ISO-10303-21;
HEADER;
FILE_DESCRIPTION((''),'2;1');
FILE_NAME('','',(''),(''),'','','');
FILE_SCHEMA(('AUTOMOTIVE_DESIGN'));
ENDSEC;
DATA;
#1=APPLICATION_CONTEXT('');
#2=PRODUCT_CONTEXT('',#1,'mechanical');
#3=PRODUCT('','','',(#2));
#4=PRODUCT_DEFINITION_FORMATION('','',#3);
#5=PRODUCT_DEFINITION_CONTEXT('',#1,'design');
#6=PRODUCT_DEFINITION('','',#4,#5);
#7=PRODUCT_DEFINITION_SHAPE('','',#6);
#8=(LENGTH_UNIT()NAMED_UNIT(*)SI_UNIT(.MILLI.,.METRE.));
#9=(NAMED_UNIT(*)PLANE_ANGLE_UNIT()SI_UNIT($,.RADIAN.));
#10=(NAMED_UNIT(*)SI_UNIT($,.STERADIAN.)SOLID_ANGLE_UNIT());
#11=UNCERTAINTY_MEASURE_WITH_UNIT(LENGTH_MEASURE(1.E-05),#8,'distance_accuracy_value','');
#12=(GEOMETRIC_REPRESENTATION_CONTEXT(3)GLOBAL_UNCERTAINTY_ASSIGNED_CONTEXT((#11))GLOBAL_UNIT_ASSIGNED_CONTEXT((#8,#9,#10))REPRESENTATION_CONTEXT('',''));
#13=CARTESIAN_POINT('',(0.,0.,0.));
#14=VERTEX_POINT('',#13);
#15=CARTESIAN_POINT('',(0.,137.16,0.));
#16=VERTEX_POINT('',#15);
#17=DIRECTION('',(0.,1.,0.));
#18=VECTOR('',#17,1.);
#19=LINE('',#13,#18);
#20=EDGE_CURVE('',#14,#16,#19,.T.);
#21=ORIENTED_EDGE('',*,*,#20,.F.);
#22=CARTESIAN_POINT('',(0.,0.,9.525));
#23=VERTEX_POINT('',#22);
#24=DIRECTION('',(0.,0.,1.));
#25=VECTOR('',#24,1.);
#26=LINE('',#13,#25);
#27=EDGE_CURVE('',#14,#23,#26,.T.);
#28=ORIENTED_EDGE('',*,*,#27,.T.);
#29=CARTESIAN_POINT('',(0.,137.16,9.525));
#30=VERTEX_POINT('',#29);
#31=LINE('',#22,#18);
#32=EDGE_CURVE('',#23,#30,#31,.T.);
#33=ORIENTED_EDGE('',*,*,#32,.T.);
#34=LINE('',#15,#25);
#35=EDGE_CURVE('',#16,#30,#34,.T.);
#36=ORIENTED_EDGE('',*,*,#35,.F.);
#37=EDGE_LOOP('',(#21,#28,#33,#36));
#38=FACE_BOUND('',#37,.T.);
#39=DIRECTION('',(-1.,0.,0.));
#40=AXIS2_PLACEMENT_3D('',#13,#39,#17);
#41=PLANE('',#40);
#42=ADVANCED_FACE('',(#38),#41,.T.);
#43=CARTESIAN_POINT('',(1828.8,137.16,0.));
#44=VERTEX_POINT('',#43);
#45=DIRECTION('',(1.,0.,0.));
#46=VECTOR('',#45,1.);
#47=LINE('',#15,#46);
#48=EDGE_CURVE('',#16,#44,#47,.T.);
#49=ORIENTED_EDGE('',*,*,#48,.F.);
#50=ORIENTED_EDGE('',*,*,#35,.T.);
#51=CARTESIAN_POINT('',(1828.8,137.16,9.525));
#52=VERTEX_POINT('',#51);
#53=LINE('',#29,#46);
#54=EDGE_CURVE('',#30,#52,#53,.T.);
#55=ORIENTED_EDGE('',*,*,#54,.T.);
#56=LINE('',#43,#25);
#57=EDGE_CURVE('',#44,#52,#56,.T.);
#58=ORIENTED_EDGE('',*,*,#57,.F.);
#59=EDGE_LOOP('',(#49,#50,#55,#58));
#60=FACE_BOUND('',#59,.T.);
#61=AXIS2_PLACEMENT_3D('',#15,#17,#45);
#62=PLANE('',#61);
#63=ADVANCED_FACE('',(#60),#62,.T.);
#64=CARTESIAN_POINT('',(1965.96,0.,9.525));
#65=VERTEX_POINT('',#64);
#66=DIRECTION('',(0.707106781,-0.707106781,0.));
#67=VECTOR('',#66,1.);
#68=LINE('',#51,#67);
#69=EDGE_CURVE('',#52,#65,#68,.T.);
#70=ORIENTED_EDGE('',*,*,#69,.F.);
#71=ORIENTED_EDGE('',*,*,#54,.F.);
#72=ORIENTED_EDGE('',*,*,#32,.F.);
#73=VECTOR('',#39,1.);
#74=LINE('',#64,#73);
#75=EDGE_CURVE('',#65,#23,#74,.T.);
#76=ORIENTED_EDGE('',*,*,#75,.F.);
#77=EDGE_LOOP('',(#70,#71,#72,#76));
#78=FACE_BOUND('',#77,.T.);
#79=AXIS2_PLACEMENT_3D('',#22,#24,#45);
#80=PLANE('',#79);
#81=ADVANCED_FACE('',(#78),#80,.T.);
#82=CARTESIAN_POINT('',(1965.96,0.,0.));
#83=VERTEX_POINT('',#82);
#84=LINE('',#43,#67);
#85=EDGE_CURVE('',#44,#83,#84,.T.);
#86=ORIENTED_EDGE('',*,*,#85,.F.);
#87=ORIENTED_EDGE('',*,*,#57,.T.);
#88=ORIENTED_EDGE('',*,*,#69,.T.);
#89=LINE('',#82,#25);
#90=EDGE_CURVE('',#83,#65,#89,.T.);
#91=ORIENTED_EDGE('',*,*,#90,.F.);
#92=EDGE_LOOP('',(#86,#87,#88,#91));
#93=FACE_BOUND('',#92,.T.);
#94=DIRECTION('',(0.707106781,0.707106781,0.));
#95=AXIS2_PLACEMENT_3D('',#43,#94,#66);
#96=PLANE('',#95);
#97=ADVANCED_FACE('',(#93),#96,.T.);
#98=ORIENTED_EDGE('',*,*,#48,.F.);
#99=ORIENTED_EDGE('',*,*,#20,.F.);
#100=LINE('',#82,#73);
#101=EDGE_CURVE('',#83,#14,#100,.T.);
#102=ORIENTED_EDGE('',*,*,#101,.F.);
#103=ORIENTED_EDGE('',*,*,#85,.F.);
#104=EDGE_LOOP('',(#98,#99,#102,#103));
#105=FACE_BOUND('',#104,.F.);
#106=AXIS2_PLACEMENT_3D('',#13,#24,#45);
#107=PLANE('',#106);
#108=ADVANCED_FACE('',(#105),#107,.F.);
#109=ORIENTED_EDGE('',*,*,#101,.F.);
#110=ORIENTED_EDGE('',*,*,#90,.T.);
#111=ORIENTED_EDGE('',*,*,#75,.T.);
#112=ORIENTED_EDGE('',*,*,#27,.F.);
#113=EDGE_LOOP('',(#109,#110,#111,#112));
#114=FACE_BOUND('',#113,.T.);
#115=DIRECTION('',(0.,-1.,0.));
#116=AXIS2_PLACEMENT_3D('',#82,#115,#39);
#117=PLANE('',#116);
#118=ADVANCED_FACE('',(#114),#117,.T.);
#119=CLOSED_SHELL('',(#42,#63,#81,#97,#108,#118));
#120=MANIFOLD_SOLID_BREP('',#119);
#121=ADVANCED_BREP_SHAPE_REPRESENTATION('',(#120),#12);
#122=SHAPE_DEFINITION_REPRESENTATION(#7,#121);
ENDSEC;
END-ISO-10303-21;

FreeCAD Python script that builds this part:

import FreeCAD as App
import Part
import Sketcher
Q = App.Units.Quantity

doc = App.newDocument("Part")
body = doc.addObject("PartDesign::Body", "Body")

# Sketch on XY plane
sketch1 = body.newObject("Sketcher::SketchObject", "Sketch")
sketch1.AttachmentSupport = (doc.getObject("XY_Plane"), [""])
sketch1.MapMode = "FlatFace"
sketch1.addGeometry(Part.LineSegment(App.Vector(0, 137, 0), App.Vector(0, 0, 0)), False)
sketch1.addGeometry(Part.LineSegment(App.Vector(0, 0, 0), App.Vector(1966, 0, 0)), False)
sketch1.addGeometry(Part.LineSegment(App.Vector(1966, 0, 0), App.Vector(1829, 137, 0)), False)
sketch1.addGeometry(Part.LineSegment(App.Vector(1829, 137, 0), App.Vector(0, 137, 0)), False)
sketch1.addConstraint(Sketcher.Constraint("Coincident", 0, 2, 1, 1))
sketch1.addConstraint(Sketcher.Constraint("Coincident", 1, 2, 2, 1))
sketch1.addConstraint(Sketcher.Constraint("Coincident", 2, 2, 3, 1))
sketch1.addConstraint(Sketcher.Constraint("Coincident", 3, 2, 0, 1))
sketch1.addConstraint(Sketcher.Constraint("Vertical", 0))
sketch1.addConstraint(Sketcher.Constraint("Horizontal", 1))
sketch1.addConstraint(Sketcher.Constraint("Horizontal", 3))
sketch1.addConstraint(Sketcher.Constraint("Coincident", 0, 2, -1, 1))
sketch1.addConstraint(Sketcher.Constraint("DistanceX", 3, 2, 3, 1, Q("72 in")))
sketch1.addConstraint(Sketcher.Constraint("DistanceY", 0, 2, 0, 1, Q("5.4 in")))
sketch1.addConstraint(Sketcher.Constraint("DistanceX", 2, 2, 1, 2, Q("5.4 in")))
pad1 = body.newObject("PartDesign::Pad", "Pad")
pad1.Profile = sketch1
pad1.Length = Q("0.375 in")

doc.recompute()
